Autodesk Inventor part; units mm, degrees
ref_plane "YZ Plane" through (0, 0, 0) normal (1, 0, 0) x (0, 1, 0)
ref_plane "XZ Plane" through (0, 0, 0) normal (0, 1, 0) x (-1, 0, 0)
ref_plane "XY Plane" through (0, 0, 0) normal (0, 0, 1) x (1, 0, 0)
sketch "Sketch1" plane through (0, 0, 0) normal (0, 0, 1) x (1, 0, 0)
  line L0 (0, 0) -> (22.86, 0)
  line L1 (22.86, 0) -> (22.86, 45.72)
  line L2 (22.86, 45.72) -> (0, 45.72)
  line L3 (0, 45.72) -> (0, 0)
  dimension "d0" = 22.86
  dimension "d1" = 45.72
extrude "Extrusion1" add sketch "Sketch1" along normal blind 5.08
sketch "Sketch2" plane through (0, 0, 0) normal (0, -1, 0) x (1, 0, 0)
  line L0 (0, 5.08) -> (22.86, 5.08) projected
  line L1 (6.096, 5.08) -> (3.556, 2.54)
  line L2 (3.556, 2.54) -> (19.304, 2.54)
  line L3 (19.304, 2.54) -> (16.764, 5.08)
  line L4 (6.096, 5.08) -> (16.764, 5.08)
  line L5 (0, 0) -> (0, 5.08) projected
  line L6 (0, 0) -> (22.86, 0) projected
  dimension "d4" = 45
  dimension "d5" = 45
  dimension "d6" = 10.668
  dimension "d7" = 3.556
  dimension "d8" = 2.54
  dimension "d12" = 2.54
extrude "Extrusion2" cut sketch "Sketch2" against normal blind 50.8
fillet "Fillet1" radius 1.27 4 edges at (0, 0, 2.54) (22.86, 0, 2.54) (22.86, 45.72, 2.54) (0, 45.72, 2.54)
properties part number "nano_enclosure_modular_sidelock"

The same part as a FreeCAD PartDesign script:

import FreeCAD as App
import Part
import Sketcher
from FreeCAD import Vector
Q = App.Units.Quantity


def edges_at(feature, points):
    """Names of the edges that pass closest to the given points."""
    edges = feature.Shape.Edges
    near = lambda p: min(range(len(edges)), key=lambda i: edges[i].distToShape(Part.Vertex(*p))[0])
    return sorted({f"Edge{near(p) + 1}" for p in points})

doc = App.newDocument("Part")
body = doc.addObject("PartDesign::Body", "Body")

# Sketch on XY plane
sketch1 = body.newObject("Sketcher::SketchObject", "Sketch")
sketch1.AttachmentSupport = (doc.getObject("XY_Plane"), [""])
sketch1.MapMode = "FlatFace"
sketch1.addGeometry([
    Part.LineSegment(Vector(0, 46, 0), Vector(0, 0, 0)),
    Part.LineSegment(Vector(0, 0, 0), Vector(23, 0, 0)),
    Part.LineSegment(Vector(23, 0, 0), Vector(23, 46, 0)),
    Part.LineSegment(Vector(23, 46, 0), Vector(0, 46, 0)),
], False)
sketch1.addConstraint([
    Sketcher.Constraint("Coincident", 0, 2, 1, 1),
    Sketcher.Constraint("Coincident", 1, 2, 2, 1),
    Sketcher.Constraint("Coincident", 2, 2, 3, 1),
    Sketcher.Constraint("Coincident", 3, 2, 0, 1),
    Sketcher.Constraint("Vertical", 0),
    Sketcher.Constraint("Horizontal", 1),
    Sketcher.Constraint("Vertical", 2),
    Sketcher.Constraint("Horizontal", 3),
    Sketcher.Constraint("Coincident", 0, 2, -1, 1),
    Sketcher.Constraint("DistanceX", 1, 1, 1, 2, Q("0.9 in")),
    Sketcher.Constraint("DistanceY", 0, 2, 0, 1, Q("1.8 in")),
])
pad1 = body.newObject("PartDesign::Pad", "Pad")
pad1.Profile = sketch1
pad1.Length = Q("0.2 in")

# Sketch on XZ plane
sketch2 = body.newObject("Sketcher::SketchObject", "Sketch001")
sketch2.AttachmentSupport = (doc.getObject("XZ_Plane"), [""])
sketch2.MapMode = "FlatFace"
sketch2.addGeometry([
    Part.LineSegment(Vector(16.8, 5.1, 0), Vector(6.1, 5.1, 0)),
    Part.LineSegment(Vector(6.1, 5.1, 0), Vector(3.6, 2.5, 0)),
    Part.LineSegment(Vector(3.6, 2.5, 0), Vector(19.3, 2.5, 0)),
    Part.LineSegment(Vector(19.3, 2.5, 0), Vector(16.8, 5.1, 0)),
], False)
sketch2.addConstraint([
    Sketcher.Constraint("Coincident", 0, 2, 1, 1),
    Sketcher.Constraint("Coincident", 1, 2, 2, 1),
    Sketcher.Constraint("Coincident", 2, 2, 3, 1),
    Sketcher.Constraint("Coincident", 3, 2, 0, 1),
    Sketcher.Constraint("Horizontal", 0),
    Sketcher.Constraint("Horizontal", 2),
    Sketcher.Constraint("Perpendicular", 1, 3),
    Sketcher.Constraint("Equal", 1, 3),
    Sketcher.Constraint("DistanceX", 0, 2, 0, 1, Q("0.42 in")),
    Sketcher.Constraint("DistanceY", -1, 1, 1, 2, Q("0.1 in")),
    Sketcher.Constraint("DistanceX", 1, 2, 0, 2, Q("0.1 in")),
    Sketcher.Constraint("DistanceX", -1, 1, 1, 2, Q("0.14 in")),
])
pocket1 = body.newObject("PartDesign::Pocket", "Pocket")
pocket1.Profile = sketch2
pocket1.Length = Q("2 in")
doc.recompute()

fillet = body.newObject("PartDesign::Fillet", "Fillet")
fillet.Base = (pocket1, edges_at(pocket1, [
    (0, 0, 2.54),
    (22.86, 0, 2.54),
    (22.86, 45.72, 2.54),
    (0, 45.72, 2.54),
]))
fillet.Radius = Q("0.05 in")

doc.recompute()
